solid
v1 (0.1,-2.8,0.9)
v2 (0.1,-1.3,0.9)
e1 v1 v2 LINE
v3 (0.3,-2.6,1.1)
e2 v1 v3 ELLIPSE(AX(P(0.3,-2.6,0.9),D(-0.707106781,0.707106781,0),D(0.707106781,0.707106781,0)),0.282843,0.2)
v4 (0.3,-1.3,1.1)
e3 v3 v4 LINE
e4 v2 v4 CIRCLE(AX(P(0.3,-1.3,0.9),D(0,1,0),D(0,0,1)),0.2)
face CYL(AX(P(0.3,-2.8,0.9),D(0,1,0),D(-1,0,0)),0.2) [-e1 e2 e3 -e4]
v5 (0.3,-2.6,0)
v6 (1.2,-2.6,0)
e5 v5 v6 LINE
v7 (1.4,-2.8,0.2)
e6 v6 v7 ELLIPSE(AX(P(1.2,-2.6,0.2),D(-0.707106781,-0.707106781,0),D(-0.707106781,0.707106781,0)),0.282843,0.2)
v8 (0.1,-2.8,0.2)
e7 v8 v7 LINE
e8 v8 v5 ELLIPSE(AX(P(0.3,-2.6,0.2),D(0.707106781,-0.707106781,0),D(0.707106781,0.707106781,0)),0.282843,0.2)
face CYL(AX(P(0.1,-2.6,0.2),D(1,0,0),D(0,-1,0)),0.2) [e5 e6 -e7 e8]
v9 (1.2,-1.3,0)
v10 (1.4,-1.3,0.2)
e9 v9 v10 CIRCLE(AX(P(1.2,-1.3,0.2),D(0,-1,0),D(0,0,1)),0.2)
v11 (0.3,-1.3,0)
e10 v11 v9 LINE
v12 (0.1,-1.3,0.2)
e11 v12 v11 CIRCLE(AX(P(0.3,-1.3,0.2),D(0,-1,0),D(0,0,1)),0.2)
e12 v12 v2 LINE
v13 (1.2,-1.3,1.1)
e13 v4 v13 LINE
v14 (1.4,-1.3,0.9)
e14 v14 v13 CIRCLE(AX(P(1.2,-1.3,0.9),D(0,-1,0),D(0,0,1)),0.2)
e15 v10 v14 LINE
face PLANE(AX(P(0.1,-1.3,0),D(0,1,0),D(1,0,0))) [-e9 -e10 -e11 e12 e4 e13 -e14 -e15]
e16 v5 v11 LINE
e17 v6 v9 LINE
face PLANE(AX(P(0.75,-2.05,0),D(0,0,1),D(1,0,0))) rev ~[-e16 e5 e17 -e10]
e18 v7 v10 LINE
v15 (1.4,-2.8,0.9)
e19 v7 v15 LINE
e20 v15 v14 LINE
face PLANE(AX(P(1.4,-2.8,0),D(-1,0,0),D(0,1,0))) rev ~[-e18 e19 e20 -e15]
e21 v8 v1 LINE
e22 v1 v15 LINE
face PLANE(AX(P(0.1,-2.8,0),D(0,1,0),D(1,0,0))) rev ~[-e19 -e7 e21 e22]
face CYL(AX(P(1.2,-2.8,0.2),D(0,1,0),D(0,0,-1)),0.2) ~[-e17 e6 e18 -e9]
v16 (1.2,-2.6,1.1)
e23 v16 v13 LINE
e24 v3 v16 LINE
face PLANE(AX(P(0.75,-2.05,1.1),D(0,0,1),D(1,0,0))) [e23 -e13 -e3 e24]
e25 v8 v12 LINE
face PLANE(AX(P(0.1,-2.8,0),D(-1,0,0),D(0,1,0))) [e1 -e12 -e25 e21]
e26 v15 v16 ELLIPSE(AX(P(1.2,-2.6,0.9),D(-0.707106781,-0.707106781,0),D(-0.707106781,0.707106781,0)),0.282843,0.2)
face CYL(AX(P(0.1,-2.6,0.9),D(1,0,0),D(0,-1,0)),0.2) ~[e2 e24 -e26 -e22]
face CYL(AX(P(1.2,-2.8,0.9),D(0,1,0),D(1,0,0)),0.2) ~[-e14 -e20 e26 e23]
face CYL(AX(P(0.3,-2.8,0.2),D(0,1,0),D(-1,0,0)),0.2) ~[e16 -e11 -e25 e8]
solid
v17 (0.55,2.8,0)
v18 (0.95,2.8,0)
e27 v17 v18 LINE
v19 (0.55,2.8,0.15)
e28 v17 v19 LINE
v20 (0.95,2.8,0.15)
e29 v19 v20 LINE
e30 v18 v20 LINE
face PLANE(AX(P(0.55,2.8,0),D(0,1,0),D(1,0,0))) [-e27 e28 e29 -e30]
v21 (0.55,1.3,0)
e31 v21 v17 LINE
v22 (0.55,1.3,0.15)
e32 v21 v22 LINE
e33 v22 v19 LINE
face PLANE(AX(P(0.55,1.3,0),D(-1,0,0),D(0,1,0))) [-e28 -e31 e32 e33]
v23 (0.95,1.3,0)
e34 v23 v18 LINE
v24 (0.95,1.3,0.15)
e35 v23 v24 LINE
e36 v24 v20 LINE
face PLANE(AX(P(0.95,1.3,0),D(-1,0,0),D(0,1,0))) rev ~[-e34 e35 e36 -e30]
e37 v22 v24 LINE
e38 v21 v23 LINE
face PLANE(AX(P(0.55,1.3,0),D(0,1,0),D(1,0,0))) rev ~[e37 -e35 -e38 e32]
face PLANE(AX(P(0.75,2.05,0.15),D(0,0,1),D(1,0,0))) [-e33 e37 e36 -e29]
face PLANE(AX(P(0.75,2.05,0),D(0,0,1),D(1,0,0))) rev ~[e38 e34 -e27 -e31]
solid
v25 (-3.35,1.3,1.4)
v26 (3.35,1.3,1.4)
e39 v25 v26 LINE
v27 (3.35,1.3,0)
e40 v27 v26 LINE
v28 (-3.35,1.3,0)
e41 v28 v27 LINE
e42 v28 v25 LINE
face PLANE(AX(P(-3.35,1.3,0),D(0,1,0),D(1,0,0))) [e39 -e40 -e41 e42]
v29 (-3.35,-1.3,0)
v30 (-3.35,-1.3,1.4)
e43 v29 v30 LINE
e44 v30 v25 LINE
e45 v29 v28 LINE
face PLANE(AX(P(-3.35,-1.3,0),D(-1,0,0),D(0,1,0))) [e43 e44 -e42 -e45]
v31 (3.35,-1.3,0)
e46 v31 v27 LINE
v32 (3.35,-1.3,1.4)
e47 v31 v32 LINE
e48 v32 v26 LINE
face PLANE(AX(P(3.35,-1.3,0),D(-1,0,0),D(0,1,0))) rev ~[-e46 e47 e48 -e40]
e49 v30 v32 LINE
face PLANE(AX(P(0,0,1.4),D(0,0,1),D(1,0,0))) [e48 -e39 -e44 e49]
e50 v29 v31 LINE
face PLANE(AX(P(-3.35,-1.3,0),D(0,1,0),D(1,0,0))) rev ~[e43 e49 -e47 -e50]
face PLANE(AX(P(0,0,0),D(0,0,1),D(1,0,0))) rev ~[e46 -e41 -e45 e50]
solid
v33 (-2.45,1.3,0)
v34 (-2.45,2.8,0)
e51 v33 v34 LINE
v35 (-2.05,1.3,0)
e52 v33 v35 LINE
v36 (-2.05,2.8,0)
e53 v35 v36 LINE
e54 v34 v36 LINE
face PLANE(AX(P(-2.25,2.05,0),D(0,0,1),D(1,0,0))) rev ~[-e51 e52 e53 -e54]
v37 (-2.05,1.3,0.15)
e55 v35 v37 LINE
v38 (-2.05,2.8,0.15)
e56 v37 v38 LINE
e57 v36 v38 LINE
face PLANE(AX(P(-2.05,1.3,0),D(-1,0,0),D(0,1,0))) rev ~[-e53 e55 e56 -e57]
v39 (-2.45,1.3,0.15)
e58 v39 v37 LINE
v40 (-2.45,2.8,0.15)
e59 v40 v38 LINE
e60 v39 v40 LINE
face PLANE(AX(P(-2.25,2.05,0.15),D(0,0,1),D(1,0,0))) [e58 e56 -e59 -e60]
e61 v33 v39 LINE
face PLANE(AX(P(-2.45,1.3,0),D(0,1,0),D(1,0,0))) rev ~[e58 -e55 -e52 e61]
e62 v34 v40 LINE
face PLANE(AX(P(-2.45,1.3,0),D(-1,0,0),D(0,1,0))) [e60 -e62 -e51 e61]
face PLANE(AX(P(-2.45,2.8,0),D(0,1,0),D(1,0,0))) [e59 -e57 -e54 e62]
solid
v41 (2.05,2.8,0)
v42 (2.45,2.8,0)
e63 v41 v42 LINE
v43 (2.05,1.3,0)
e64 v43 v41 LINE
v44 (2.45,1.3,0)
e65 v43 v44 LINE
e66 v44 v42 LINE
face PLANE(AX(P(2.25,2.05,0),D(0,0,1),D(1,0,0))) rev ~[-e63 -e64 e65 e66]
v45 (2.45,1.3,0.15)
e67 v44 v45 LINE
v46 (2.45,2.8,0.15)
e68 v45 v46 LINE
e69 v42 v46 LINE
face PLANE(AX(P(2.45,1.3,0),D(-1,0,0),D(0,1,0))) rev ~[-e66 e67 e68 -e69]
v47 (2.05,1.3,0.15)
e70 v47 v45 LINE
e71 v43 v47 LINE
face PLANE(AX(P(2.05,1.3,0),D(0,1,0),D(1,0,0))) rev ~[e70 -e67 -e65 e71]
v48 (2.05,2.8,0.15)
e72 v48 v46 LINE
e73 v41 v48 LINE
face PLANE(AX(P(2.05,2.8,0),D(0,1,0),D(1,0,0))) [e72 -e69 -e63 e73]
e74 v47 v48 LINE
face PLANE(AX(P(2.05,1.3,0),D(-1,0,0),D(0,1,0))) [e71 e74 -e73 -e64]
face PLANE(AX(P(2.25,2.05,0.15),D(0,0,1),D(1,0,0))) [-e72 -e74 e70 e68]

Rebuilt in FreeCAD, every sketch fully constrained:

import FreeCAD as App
import Part
import Sketcher


def edges_at(feature, points):
    """Names of the edges that pass closest to the given points."""
    edges = feature.Shape.Edges
    near = lambda p: min(range(len(edges)), key=lambda i: edges[i].distToShape(Part.Vertex(*p))[0])
    return sorted({f"Edge{near(p) + 1}" for p in points})


def add_polygon(sketch, points):
    """Adds a closed chain of lines whose ends are joined by coincident constraints."""
    first, n = sketch.GeometryCount, len(points)
    for a, b in zip(points, points[1:] + points[:1]):
        sketch.addGeometry(Part.LineSegment(App.Vector(*a, 0), App.Vector(*b, 0)), False)
    for i in range(n):
        sketch.addConstraint(Sketcher.Constraint("Coincident", first + i, 2, first + (i + 1) % n, 1))

doc = App.newDocument("Part")
params = doc.addObject("Spreadsheet::Sheet", "Params")
for row, (alias, value) in enumerate([
    ("sketch1_width", "6.7 mm"),
    ("sketch1_height", "2.6 mm"),
    ("pad1_length", "1.4 mm"),
    ("sketch2_width", "0.4 mm"),
    ("sketch2_height", "1.5 mm"),
    ("pad2_length", "0.15 mm"),
    ("sketch3_width", "1.3 mm"),
    ("sketch3_height", "1.5 mm"),
    ("pad3_length", "1.1 mm"),
    ("fillet_radius", "0.2 mm"),
    ("fillet2_radius", "0.2 mm"),
], start=1):
    params.set(f"A{row}", alias)
    params.set(f"B{row}", "=" + value)
    params.setAlias(f"B{row}", alias)

body = doc.addObject("PartDesign::Body", "Body")

# Sketch on XY plane
sketch1 = body.newObject("Sketcher::SketchObject", "Sketch")
sketch1.AttachmentSupport = (doc.getObject("XY_Plane"), [""])
sketch1.MapMode = "FlatFace"
add_polygon(sketch1, [(-3.4, 1.3), (-3.4, -1.3), (3.4, -1.3), (3.4, 1.3)])  # lines 0-3
sketch1.addConstraint([
    Sketcher.Constraint("Vertical", 0),
    Sketcher.Constraint("Horizontal", 1),
    Sketcher.Constraint("Vertical", 2),
    Sketcher.Constraint("Horizontal", 3),
    Sketcher.Constraint("Symmetric", 0, 2, 2, 2, -1, 1),
    Sketcher.Constraint("DistanceX", 1, 1, 1, 2, 6.7),
    Sketcher.Constraint("DistanceY", 0, 2, 0, 1, 2.6),
])
sketch1.setExpression("Constraints[9]", "Params.sketch1_width")
sketch1.setExpression("Constraints[10]", "Params.sketch1_height")
pad1 = body.newObject("PartDesign::Pad", "Pad")
pad1.Profile = sketch1
pad1.setExpression("Length", "Params.pad1_length")
body2 = doc.addObject("PartDesign::Body", "Body001")
body2.AllowCompound = True

# Sketch on XY plane
sketch2 = body2.newObject("Sketcher::SketchObject", "Sketch001")
sketch2.AttachmentSupport = (doc.getObject("XY_Plane001"), [""])
sketch2.MapMode = "FlatFace"
add_polygon(sketch2, [(-2.45, 2.8), (-2.45, 1.3), (-2.05, 1.3), (-2.05, 2.8)])  # lines 0-3
add_polygon(sketch2, [(0.55, 2.8), (0.55, 1.3), (0.95, 1.3), (0.95, 2.8)])  # lines 4-7
add_polygon(sketch2, [(2.05, 2.8), (2.05, 1.3), (2.45, 1.3), (2.45, 2.8)])  # lines 8-11
sketch2.addConstraint([
    Sketcher.Constraint("Vertical", 0),
    Sketcher.Constraint("Horizontal", 1),
    Sketcher.Constraint("Vertical", 2),
    Sketcher.Constraint("Horizontal", 3),
    Sketcher.Constraint("Vertical", 4),
    Sketcher.Constraint("Horizontal", 5),
    Sketcher.Constraint("Vertical", 6),
    Sketcher.Constraint("Horizontal", 7),
    Sketcher.Constraint("Vertical", 8),
    Sketcher.Constraint("Horizontal", 9),
    Sketcher.Constraint("Vertical", 10),
    Sketcher.Constraint("Horizontal", 11),
    Sketcher.Constraint("Symmetric", 1, 2, 8, 2, -2),
    Sketcher.Constraint("Symmetric", 3, 2, 10, 2, -2),
    Sketcher.Constraint("Horizontal", 1, 2, 4, 2),
    Sketcher.Constraint("Horizontal", 3, 2, 6, 2),
    Sketcher.Constraint("Equal", 3, 5),
    Sketcher.Constraint("DistanceX", 1, 1, 1, 2, 0.4),
    Sketcher.Constraint("DistanceY", 0, 2, 0, 1, 1.5),
    Sketcher.Constraint("DistanceX", 0, 2, 4, 2, 3.0),
    Sketcher.Constraint("DistanceY", -1, 1, 0, 2, 1.3),
    Sketcher.Constraint("DistanceX", 5, 2, 8, 2, 1.1),
])
sketch2.setExpression("Constraints[29]", "Params.sketch2_width")
sketch2.setExpression("Constraints[30]", "Params.sketch2_height")
pad2 = body2.newObject("PartDesign::Pad", "Pad001")
pad2.Profile = sketch2
pad2.setExpression("Length", "Params.pad2_length")
body3 = doc.addObject("PartDesign::Body", "Body002")

# Sketch on XY plane
sketch3 = body3.newObject("Sketcher::SketchObject", "Sketch002")
sketch3.AttachmentSupport = (doc.getObject("XY_Plane002"), [""])
sketch3.MapMode = "FlatFace"
add_polygon(sketch3, [(0.1, -1.3), (0.1, -2.8), (1.4, -2.8), (1.4, -1.3)])  # lines 0-3
sketch3.addConstraint([
    Sketcher.Constraint("Vertical", 0),
    Sketcher.Constraint("Horizontal", 1),
    Sketcher.Constraint("Vertical", 2),
    Sketcher.Constraint("Horizontal", 3),
    Sketcher.Constraint("DistanceX", 1, 1, 1, 2, 1.3),
    Sketcher.Constraint("DistanceY", 0, 2, 0, 1, 1.5),
    Sketcher.Constraint("DistanceX", -1, 1, 0, 2, 0.1),
    Sketcher.Constraint("DistanceY", 0, 2, -1, 1, 2.8),
])
sketch3.setExpression("Constraints[8]", "Params.sketch3_width")
sketch3.setExpression("Constraints[9]", "Params.sketch3_height")
pad3 = body3.newObject("PartDesign::Pad", "Pad002")
pad3.Profile = sketch3
pad3.setExpression("Length", "Params.pad3_length")
doc.recompute()

fillet = body3.newObject("PartDesign::Fillet", "Fillet")
fillet.Base = (pad3, edges_at(pad3, [(1.4, -2.05, 1.1), (0.75, -2.8, 1.1), (0.1, -2.05, 1.1)]))
fillet.setExpression("Radius", "Params.fillet_radius")
doc.recompute()

fillet2 = body3.newObject("PartDesign::Fillet", "Fillet001")
fillet2.Base = (fillet, edges_at(fillet, [(1.4, -2.05, 0), (0.75, -2.8, 0), (0.1, -2.05, 0)]))
fillet2.setExpression("Radius", "Params.fillet2_radius")

doc.recompute()
